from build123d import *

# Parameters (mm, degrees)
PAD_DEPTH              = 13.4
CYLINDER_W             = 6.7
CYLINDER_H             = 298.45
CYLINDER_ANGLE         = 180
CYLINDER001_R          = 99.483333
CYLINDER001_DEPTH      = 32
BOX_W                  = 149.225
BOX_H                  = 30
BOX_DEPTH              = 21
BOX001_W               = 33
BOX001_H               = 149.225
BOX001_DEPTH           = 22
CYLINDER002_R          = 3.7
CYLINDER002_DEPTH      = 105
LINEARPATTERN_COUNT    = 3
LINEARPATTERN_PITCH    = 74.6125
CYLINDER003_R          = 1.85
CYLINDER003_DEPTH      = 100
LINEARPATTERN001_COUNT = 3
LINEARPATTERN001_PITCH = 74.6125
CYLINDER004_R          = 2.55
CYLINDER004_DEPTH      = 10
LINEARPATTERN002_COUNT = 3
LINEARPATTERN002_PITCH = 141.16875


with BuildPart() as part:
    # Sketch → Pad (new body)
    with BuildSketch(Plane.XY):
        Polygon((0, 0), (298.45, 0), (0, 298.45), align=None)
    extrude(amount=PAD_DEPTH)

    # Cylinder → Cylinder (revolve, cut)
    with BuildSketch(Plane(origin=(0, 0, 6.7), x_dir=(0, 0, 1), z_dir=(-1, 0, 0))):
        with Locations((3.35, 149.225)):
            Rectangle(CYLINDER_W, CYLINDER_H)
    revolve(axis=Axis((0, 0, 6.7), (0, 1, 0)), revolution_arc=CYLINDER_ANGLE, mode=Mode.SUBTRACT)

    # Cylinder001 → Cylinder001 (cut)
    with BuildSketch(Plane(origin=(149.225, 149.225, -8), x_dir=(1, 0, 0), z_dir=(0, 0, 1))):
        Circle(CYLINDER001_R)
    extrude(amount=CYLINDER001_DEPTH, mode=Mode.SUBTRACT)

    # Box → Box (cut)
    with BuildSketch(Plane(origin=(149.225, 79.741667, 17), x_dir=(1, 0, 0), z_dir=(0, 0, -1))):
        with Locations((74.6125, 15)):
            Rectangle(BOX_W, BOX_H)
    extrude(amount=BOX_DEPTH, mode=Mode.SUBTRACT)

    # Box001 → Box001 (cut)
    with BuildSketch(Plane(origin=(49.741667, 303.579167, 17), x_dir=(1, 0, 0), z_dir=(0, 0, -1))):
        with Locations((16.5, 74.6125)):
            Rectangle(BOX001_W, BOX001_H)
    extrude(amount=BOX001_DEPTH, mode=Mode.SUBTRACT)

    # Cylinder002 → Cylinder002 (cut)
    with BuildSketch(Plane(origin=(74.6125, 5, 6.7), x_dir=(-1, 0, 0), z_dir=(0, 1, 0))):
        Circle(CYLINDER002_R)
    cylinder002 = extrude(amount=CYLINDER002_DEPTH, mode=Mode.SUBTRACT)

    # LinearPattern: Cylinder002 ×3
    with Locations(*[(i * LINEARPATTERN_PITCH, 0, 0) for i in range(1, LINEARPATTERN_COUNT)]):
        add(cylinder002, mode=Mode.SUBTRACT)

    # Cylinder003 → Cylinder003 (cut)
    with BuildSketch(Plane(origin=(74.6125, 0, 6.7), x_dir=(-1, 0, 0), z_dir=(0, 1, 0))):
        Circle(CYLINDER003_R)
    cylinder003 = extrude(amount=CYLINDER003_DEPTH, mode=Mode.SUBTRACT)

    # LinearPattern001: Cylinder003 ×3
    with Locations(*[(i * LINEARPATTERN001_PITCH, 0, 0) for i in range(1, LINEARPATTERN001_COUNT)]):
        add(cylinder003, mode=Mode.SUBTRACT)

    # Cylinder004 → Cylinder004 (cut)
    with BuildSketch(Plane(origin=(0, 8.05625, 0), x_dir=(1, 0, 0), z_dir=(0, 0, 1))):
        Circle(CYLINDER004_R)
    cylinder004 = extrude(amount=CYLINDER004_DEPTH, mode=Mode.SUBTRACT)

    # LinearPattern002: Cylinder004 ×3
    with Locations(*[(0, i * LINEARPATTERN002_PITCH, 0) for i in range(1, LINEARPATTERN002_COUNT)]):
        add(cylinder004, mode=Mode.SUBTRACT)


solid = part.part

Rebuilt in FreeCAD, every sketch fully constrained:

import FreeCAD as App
import Part
import Sketcher

doc = App.newDocument("Part")
body = doc.addObject("PartDesign::Body", "Body")

sketch1 = doc.addObject("Sketcher::SketchObject", "Sketch")
body.addObject(sketch1)
sketch1.AttachmentSupport = (doc.XY_Plane, [""])
sketch1.MapMode = "FlatFace"
sketch1.addGeometry([
    Part.LineSegment(App.Vector(0, 0, 0), App.Vector(298.45, 0, 0)),
    Part.LineSegment(App.Vector(298.45, 0, 0), App.Vector(0, 298.45, 0)),
    Part.LineSegment(App.Vector(0, 298.45, 0), App.Vector(0, 0, 0)),
], False)
sketch1.addConstraint([
    Sketcher.Constraint("Coincident", 0, 2, 1, 1),
    Sketcher.Constraint("Coincident", 1, 2, 2, 1),
    Sketcher.Constraint("Coincident", 2, 2, 0, 1),
    Sketcher.Constraint("Horizontal", 0),
    Sketcher.Constraint("Vertical", 2),
    Sketcher.Constraint("Coincident", 2, 2, -1, 1),
    Sketcher.Constraint("Equal", 0, 2),
    Sketcher.Constraint("DistanceX", 0, 1, 0, 2, 298.45),
])
pad1 = doc.addObject("PartDesign::Pad", "Pad")
body.addObject(pad1)
pad1.Profile = sketch1
pad1.Length = 13.4

sketch2 = doc.addObject("Sketcher::SketchObject", "Sketch001")
body.addObject(sketch2)
sketch2.AttachmentSupport = (doc.YZ_Plane, [""])
sketch2.MapMode = "FlatFace"
sketch2.addGeometry([
    Part.LineSegment(App.Vector(298.45, 6.7, 0), App.Vector(0, 6.7, 0)),
    Part.LineSegment(App.Vector(0, 6.7, 0), App.Vector(0, 13.4, 0)),
    Part.LineSegment(App.Vector(0, 13.4, 0), App.Vector(298.45, 13.4, 0)),
    Part.LineSegment(App.Vector(298.45, 13.4, 0), App.Vector(298.45, 6.7, 0)),
], False)
sketch2.addGeometry(Part.LineSegment(App.Vector(0, 6.7, 0), App.Vector(298.45, 6.7, 0)), True)
sketch2.addConstraint([
    Sketcher.Constraint("Coincident", 0, 2, 1, 1),
    Sketcher.Constraint("Coincident", 1, 2, 2, 1),
    Sketcher.Constraint("Coincident", 2, 2, 3, 1),
    Sketcher.Constraint("Coincident", 3, 2, 0, 1),
    Sketcher.Constraint("Horizontal", 0),
    Sketcher.Constraint("Vertical", 1),
    Sketcher.Constraint("Horizontal", 2),
    Sketcher.Constraint("Vertical", 3),
    Sketcher.Constraint("Horizontal", 4),
    Sketcher.Constraint("Coincident", 4, 1, 0, 2),
    Sketcher.Constraint("PointOnObject", 0, 2, -2),
    Sketcher.Constraint("Vertical", 2, 2, 4, 2),
    Sketcher.Constraint("DistanceY", 1, 1, 1, 2, 6.7),
    Sketcher.Constraint("DistanceX", 0, 2, 0, 1, 298.45),
    Sketcher.Constraint("DistanceY", -1, 1, 0, 2, 6.7),
])
groove = doc.addObject("PartDesign::Groove", "Groove")
body.addObject(groove)
groove.Profile = sketch2
groove.ReferenceAxis = (sketch2, ["Axis0"])
groove.Angle = 180

sketch3 = doc.addObject("Sketcher::SketchObject", "Sketch002")
body.addObject(sketch3)
sketch3.AttachmentSupport = (doc.XY_Plane, [""])
sketch3.MapMode = "FlatFace"
sketch3.AttachmentOffset = App.Placement(App.Vector(0, 0, -8), App.Rotation())
sketch3.addGeometry(Part.Circle(App.Vector(149.225, 149.225, 0), App.Vector(0, 0, 1), 99.483333), False)
sketch3.addConstraint([
    Sketcher.Constraint("Diameter", 0, 198.966666),
    Sketcher.Constraint("DistanceX", -1, 1, 0, 3, 149.225),
    Sketcher.Constraint("DistanceY", -1, 1, 0, 3, 149.225),
])
pocket1 = doc.addObject("PartDesign::Pocket", "Pocket")
body.addObject(pocket1)
pocket1.Profile = sketch3
pocket1.Length = 32
pocket1.Reversed = True

sketch4 = doc.addObject("Sketcher::SketchObject", "Sketch003")
body.addObject(sketch4)
sketch4.AttachmentSupport = (doc.XY_Plane, [""])
sketch4.MapMode = "FlatFace"
sketch4.AttachmentOffset = App.Placement(App.Vector(0, 0, 17), App.Rotation())
sketch4.addGeometry([
    Part.LineSegment(App.Vector(149.225, 49.741667, 0), App.Vector(149.225, 79.741667, 0)),
    Part.LineSegment(App.Vector(149.225, 79.741667, 0), App.Vector(298.45, 79.741667, 0)),
    Part.LineSegment(App.Vector(298.45, 79.741667, 0), App.Vector(298.45, 49.741667, 0)),
    Part.LineSegment(App.Vector(298.45, 49.741667, 0), App.Vector(149.225, 49.741667, 0)),
], False)
sketch4.addConstraint([
    Sketcher.Constraint("Coincident", 0, 2, 1, 1),
    Sketcher.Constraint("Coincident", 1, 2, 2, 1),
    Sketcher.Constraint("Coincident", 2, 2, 3, 1),
    Sketcher.Constraint("Coincident", 3, 2, 0, 1),
    Sketcher.Constraint("Vertical", 0),
    Sketcher.Constraint("Horizontal", 1),
    Sketcher.Constraint("Vertical", 2),
    Sketcher.Constraint("Horizontal", 3),
    Sketcher.Constraint("DistanceY", 0, 1, 0, 2, 30.0),
    Sketcher.Constraint("DistanceX", 1, 1, 1, 2, 149.225),
    Sketcher.Constraint("DistanceX", -1, 1, 1, 2, 298.45),
    Sketcher.Constraint("DistanceY", -1, 1, 0, 2, 79.741667),
])
pocket2 = doc.addObject("PartDesign::Pocket", "Pocket001")
body.addObject(pocket2)
pocket2.Profile = sketch4
pocket2.Length = 21

sketch5 = doc.addObject("Sketcher::SketchObject", "Sketch004")
body.addObject(sketch5)
sketch5.AttachmentSupport = (doc.XY_Plane, [""])
sketch5.MapMode = "FlatFace"
sketch5.AttachmentOffset = App.Placement(App.Vector(0, 0, 17), App.Rotation())
sketch5.addGeometry([
    Part.LineSegment(App.Vector(49.741667, 154.354167, 0), App.Vector(49.741667, 303.579167, 0)),
    Part.LineSegment(App.Vector(49.741667, 303.579167, 0), App.Vector(82.741667, 303.579167, 0)),
    Part.LineSegment(App.Vector(82.741667, 303.579167, 0), App.Vector(82.741667, 154.354167, 0)),
    Part.LineSegment(App.Vector(82.741667, 154.354167, 0), App.Vector(49.741667, 154.354167, 0)),
], False)
sketch5.addConstraint([
    Sketcher.Constraint("Coincident", 0, 2, 1, 1),
    Sketcher.Constraint("Coincident", 1, 2, 2, 1),
    Sketcher.Constraint("Coincident", 2, 2, 3, 1),
    Sketcher.Constraint("Coincident", 3, 2, 0, 1),
    Sketcher.Constraint("Vertical", 0),
    Sketcher.Constraint("Horizontal", 1),
    Sketcher.Constraint("Vertical", 2),
    Sketcher.Constraint("Horizontal", 3),
    Sketcher.Constraint("DistanceX", 1, 1, 1, 2, 33.0),
    Sketcher.Constraint("DistanceY", 0, 1, 0, 2, 149.225),
    Sketcher.Constraint("DistanceX", -1, 1, 0, 2, 49.741667),
    Sketcher.Constraint("DistanceY", -1, 1, 0, 2, 303.579167),
])
pocket3 = doc.addObject("PartDesign::Pocket", "Pocket002")
body.addObject(pocket3)
pocket3.Profile = sketch5
pocket3.Length = 22

sketch6 = doc.addObject("Sketcher::SketchObject", "Sketch005")
body.addObject(sketch6)
sketch6.AttachmentSupport = (doc.XZ_Plane, [""])
sketch6.MapMode = "FlatFace"
sketch6.AttachmentOffset = App.Placement(App.Vector(0, 0, -5), App.Rotation())
sketch6.addGeometry(Part.Circle(App.Vector(74.6125, 6.7, 0), App.Vector(0, 0, 1), 3.7), False)
sketch6.addConstraint([
    Sketcher.Constraint("Diameter", 0, 7.4),
    Sketcher.Constraint("DistanceY", -1, 1, 0, 3, 6.7),
    Sketcher.Constraint("DistanceX", -1, 1, 0, 3, 74.6125),
])
pocket4 = doc.addObject("PartDesign::Pocket", "Pocket003")
body.addObject(pocket4)
pocket4.Profile = sketch6
pocket4.Length = 105
doc.recompute()

linearpattern = doc.addObject("PartDesign::LinearPattern", "LinearPattern")
body.addObject(linearpattern)
linearpattern.Originals = [pocket4]
linearpattern.Direction = (doc.X_Axis, [""])
linearpattern.Mode = "offset"
linearpattern.Offset = 74.6125
linearpattern.Occurrences = 3
body.Tip = linearpattern

sketch7 = doc.addObject("Sketcher::SketchObject", "Sketch006")
body.addObject(sketch7)
sketch7.AttachmentSupport = (doc.XZ_Plane, [""])
sketch7.MapMode = "FlatFace"
sketch7.addGeometry(Part.Circle(App.Vector(74.6125, 6.7, 0), App.Vector(0, 0, 1), 1.85), False)
sketch7.addConstraint([
    Sketcher.Constraint("Diameter", 0, 3.7),
    Sketcher.Constraint("DistanceY", -1, 1, 0, 3, 6.7),
    Sketcher.Constraint("DistanceX", -1, 1, 0, 3, 74.6125),
])
pocket5 = doc.addObject("PartDesign::Pocket", "Pocket004")
body.addObject(pocket5)
pocket5.Profile = sketch7
pocket5.Length = 100
doc.recompute()

linearpattern2 = doc.addObject("PartDesign::LinearPattern", "LinearPattern001")
body.addObject(linearpattern2)
linearpattern2.Originals = [pocket5]
linearpattern2.Direction = (doc.X_Axis, [""])
linearpattern2.Mode = "offset"
linearpattern2.Offset = 74.6125
linearpattern2.Occurrences = 3
body.Tip = linearpattern2

sketch8 = doc.addObject("Sketcher::SketchObject", "Sketch007")
body.addObject(sketch8)
sketch8.AttachmentSupport = (doc.XY_Plane, [""])
sketch8.MapMode = "FlatFace"
sketch8.addGeometry(Part.Circle(App.Vector(0, 8.05625, 0), App.Vector(0, 0, 1), 2.55), False)
sketch8.addConstraint([
    Sketcher.Constraint("PointOnObject", 0, 3, -2),
    Sketcher.Constraint("Diameter", 0, 5.1),
    Sketcher.Constraint("DistanceY", -1, 1, 0, 3, 8.05625),
])
pocket6 = doc.addObject("PartDesign::Pocket", "Pocket005")
body.addObject(pocket6)
pocket6.Profile = sketch8
pocket6.Length = 10
pocket6.Reversed = True
doc.recompute()

linearpattern3 = doc.addObject("PartDesign::LinearPattern", "LinearPattern002")
body.addObject(linearpattern3)
linearpattern3.Originals = [pocket6]
linearpattern3.Direction = (doc.Y_Axis, [""])
linearpattern3.Mode = "offset"
linearpattern3.Offset = 141.16875
linearpattern3.Occurrences = 3
body.Tip = linearpattern3

doc.recompute()
